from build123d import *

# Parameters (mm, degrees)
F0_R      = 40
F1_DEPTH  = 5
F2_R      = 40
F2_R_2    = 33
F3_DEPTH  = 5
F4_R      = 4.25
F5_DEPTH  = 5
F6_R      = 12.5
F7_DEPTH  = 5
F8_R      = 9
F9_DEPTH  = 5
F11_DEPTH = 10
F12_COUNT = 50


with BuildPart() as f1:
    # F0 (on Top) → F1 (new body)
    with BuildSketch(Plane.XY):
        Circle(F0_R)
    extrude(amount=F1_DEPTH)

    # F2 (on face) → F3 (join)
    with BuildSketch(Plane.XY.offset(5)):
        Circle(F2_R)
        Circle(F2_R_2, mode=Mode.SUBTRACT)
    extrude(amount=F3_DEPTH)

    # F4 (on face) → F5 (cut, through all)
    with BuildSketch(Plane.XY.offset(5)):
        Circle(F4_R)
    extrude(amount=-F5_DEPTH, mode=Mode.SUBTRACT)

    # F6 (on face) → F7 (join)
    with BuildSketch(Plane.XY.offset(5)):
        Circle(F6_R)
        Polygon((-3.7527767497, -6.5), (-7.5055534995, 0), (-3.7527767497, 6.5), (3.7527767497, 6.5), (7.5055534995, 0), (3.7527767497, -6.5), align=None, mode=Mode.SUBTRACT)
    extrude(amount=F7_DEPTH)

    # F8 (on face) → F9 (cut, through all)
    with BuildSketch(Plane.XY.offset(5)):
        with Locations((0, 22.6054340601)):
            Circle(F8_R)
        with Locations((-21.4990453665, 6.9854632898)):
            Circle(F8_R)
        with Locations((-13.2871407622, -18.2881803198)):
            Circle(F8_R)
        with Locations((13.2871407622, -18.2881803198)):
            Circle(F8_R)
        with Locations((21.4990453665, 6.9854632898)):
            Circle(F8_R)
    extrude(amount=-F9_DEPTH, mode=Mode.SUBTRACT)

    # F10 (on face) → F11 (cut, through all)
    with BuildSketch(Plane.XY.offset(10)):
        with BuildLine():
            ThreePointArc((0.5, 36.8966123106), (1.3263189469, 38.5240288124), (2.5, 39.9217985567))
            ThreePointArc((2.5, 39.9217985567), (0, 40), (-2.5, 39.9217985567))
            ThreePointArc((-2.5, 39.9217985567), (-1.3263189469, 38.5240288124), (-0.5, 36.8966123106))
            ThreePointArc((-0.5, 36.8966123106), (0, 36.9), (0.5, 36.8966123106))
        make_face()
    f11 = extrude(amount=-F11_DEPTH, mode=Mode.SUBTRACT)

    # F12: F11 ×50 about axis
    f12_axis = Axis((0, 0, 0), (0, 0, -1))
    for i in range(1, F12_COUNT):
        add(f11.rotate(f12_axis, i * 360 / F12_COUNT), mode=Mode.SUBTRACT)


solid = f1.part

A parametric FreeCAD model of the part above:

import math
import FreeCAD as App
import Part
import Sketcher
from FreeCAD import Vector
Q = App.Units.Quantity

doc = App.newDocument("Part")
body = doc.addObject("PartDesign::Body", "Body")

# Sketch on XY plane
sketch1 = body.newObject("Sketcher::SketchObject", "Sketch")
sketch1.AttachmentSupport = (doc.getObject("XY_Plane"), [""])
sketch1.MapMode = "FlatFace"
sketch1.addGeometry(Part.Circle(Vector(0, 0, 0), Vector(0, 0, 1), 40), False)
sketch1.addConstraint(Sketcher.Constraint("Coincident", 0, 3, -1, 1))
sketch1.addConstraint(Sketcher.Constraint("Diameter", 0, 80.0))
pad1 = body.newObject("PartDesign::Pad", "Pad")
pad1.Profile = sketch1
pad1.Length = 5

# Sketch on XY plane
sketch2 = body.newObject("Sketcher::SketchObject", "Sketch001")
sketch2.AttachmentSupport = (doc.getObject("XY_Plane"), [""])
sketch2.MapMode = "FlatFace"
sketch2.AttachmentOffset = App.Placement(Vector(0, 0, 5), App.Rotation())
sketch2.addGeometry(Part.Circle(Vector(0, 0, 0), Vector(0, 0, 1), 40), False)
sketch2.addGeometry(Part.Circle(Vector(0, 0, 0), Vector(0, 0, 1), 33), False)
sketch2.addConstraint(Sketcher.Constraint("Coincident", 0, 3, -1, 1))
sketch2.addConstraint(Sketcher.Constraint("Coincident", 1, 3, -1, 1))
sketch2.addConstraint(Sketcher.Constraint("Diameter", 0, 80.0))
sketch2.addConstraint(Sketcher.Constraint("Diameter", 1, 66.0))
pad2 = body.newObject("PartDesign::Pad", "Pad001")
pad2.Profile = sketch2
pad2.Length = 5

# Sketch on XY plane
sketch3 = body.newObject("Sketcher::SketchObject", "Sketch002")
sketch3.AttachmentSupport = (doc.getObject("XY_Plane"), [""])
sketch3.MapMode = "FlatFace"
sketch3.AttachmentOffset = App.Placement(Vector(0, 0, 5), App.Rotation())
sketch3.addGeometry(Part.Circle(Vector(0, 0, 0), Vector(0, 0, 1), 4.2), False)
sketch3.addConstraint(Sketcher.Constraint("Coincident", 0, 3, -1, 1))
sketch3.addConstraint(Sketcher.Constraint("Diameter", 0, 8.5))
pocket1 = body.newObject("PartDesign::Pocket", "Pocket")
pocket1.Profile = sketch3
pocket1.Type = "ThroughAll"

# Sketch on XY plane
sketch4 = body.newObject("Sketcher::SketchObject", "Sketch003")
sketch4.AttachmentSupport = (doc.getObject("XY_Plane"), [""])
sketch4.MapMode = "FlatFace"
sketch4.AttachmentOffset = App.Placement(Vector(0, 0, 5), App.Rotation())
sketch4.addGeometry(Part.Circle(Vector(0, 0, 0), Vector(0, 0, 1), 12), False)
sketch4.addGeometry(Part.LineSegment(Vector(4, -6, 0), Vector(-4, -6, 0)), False)
sketch4.addGeometry(Part.LineSegment(Vector(-4, -6, 0), Vector(-8, 0, 0)), False)
sketch4.addGeometry(Part.LineSegment(Vector(-8, 0, 0), Vector(-4, 6, 0)), False)
sketch4.addGeometry(Part.LineSegment(Vector(-4, 6, 0), Vector(4, 6, 0)), False)
sketch4.addGeometry(Part.LineSegment(Vector(4, 6, 0), Vector(8, 0, 0)), False)
sketch4.addGeometry(Part.LineSegment(Vector(8, 0, 0), Vector(4, -6, 0)), False)
sketch4.addConstraint(Sketcher.Constraint("Coincident", 1, 2, 2, 1))
sketch4.addConstraint(Sketcher.Constraint("Coincident", 2, 2, 3, 1))
sketch4.addConstraint(Sketcher.Constraint("Coincident", 3, 2, 4, 1))
sketch4.addConstraint(Sketcher.Constraint("Coincident", 4, 2, 5, 1))
sketch4.addConstraint(Sketcher.Constraint("Coincident", 5, 2, 6, 1))
sketch4.addConstraint(Sketcher.Constraint("Coincident", 6, 2, 1, 1))
sketch4.addConstraint(Sketcher.Constraint("Horizontal", 1))
sketch4.addConstraint(Sketcher.Constraint("Horizontal", 4))
sketch4.addConstraint(Sketcher.Constraint("Coincident", 0, 3, -1, 1))
sketch4.addConstraint(Sketcher.Constraint("Symmetric", 1, 2, 4, 2, -1, 1))
sketch4.addConstraint(Sketcher.Constraint("Symmetric", 2, 2, 5, 2, -1, 1))
sketch4.addConstraint(Sketcher.Constraint("PointOnObject", 2, 2, -1))
sketch4.addConstraint(Sketcher.Constraint("Parallel", 3, 6))
sketch4.addConstraint(Sketcher.Constraint("Vertical", 1, 2, 3, 2))
sketch4.addConstraint(Sketcher.Constraint("Diameter", 0, 25.0))
sketch4.addConstraint(Sketcher.Constraint("Angle", 2, Q("120 deg")))
sketch4.addConstraint(Sketcher.Constraint("DistanceY", 1, 2, 3, 2, 13.0))
sketch4.addConstraint(Sketcher.Constraint("DistanceX", 1, 2, 1, 1, 7.505554))
pad3 = body.newObject("PartDesign::Pad", "Pad002")
pad3.Profile = sketch4
pad3.Length = 5

# Sketch on XY plane
sketch5 = body.newObject("Sketcher::SketchObject", "Sketch004")
sketch5.AttachmentSupport = (doc.getObject("XY_Plane"), [""])
sketch5.MapMode = "FlatFace"
sketch5.AttachmentOffset = App.Placement(Vector(0, 0, 5), App.Rotation())
sketch5.addGeometry(Part.Circle(Vector(0, 23, 0), Vector(0, 0, 1), 9), False)
sketch5.addGeometry(Part.Circle(Vector(-21, 7, 0), Vector(0, 0, 1), 9), False)
sketch5.addGeometry(Part.Circle(Vector(-13, -18, 0), Vector(0, 0, 1), 9), False)
sketch5.addGeometry(Part.Circle(Vector(13, -18, 0), Vector(0, 0, 1), 9), False)
sketch5.addGeometry(Part.Circle(Vector(21, 7, 0), Vector(0, 0, 1), 9), False)
sketch5.addConstraint(Sketcher.Constraint("Equal", 0, 1))
sketch5.addConstraint(Sketcher.Constraint("Equal", 1, 2))
sketch5.addConstraint(Sketcher.Constraint("Equal", 2, 3))
sketch5.addConstraint(Sketcher.Constraint("Equal", 3, 4))
sketch5.addConstraint(Sketcher.Constraint("Symmetric", 2, 3, 3, 3, -2))
sketch5.addConstraint(Sketcher.Constraint("Symmetric", 1, 3, 4, 3, -2))
sketch5.addConstraint(Sketcher.Constraint("PointOnObject", 0, 3, -2))
sketch5.addConstraint(Sketcher.Constraint("Diameter", 0, 18.0))
sketch5.addConstraint(Sketcher.Constraint("DistanceX", 2, 3, -1, 1, 13.287141))
sketch5.addConstraint(Sketcher.Constraint("DistanceY", 2, 3, -1, 1, 18.28818))
sketch5.addConstraint(Sketcher.Constraint("DistanceY", 1, 3, 0, 3, 15.619971))
sketch5.addConstraint(Sketcher.Constraint("DistanceX", 1, 3, 4, 3, 42.998091))
sketch5.addConstraint(Sketcher.Constraint("DistanceY", -1, 1, 0, 3, 22.605434))
pocket2 = body.newObject("PartDesign::Pocket", "Pocket001")
pocket2.Profile = sketch5
pocket2.Type = "ThroughAll"

# Sketch on XY plane
sketch6 = body.newObject("Sketcher::SketchObject", "Sketch005")
sketch6.AttachmentSupport = (doc.getObject("XY_Plane"), [""])
sketch6.MapMode = "FlatFace"
sketch6.AttachmentOffset = App.Placement(Vector(0, 0, 10), App.Rotation())
sketch6.addGeometry(Part.ArcOfCircle(Part.Circle(Vector(8, 34.1, 0), Vector(0, 0, 1), 8), math.radians(133), math.radians(160)), False)
sketch6.addGeometry(Part.ArcOfCircle(Part.Circle(Vector(0, 0, 0), Vector(0, 0, 1), 40), math.radians(86.42), math.radians(93.58)), False)
sketch6.addGeometry(Part.ArcOfCircle(Part.Circle(Vector(-8, 34.1, 0), Vector(0, 0, 1), 8), math.radians(20), math.radians(47)), False)
sketch6.addGeometry(Part.ArcOfCircle(Part.Circle(Vector(0, 0, 0), Vector(0, 0, 1), 36.9), math.radians(89.22), math.radians(90.78)), False)
sketch6.addConstraint(Sketcher.Constraint("Coincident", 0, 1, 1, 1))
sketch6.addConstraint(Sketcher.Constraint("Coincident", 1, 2, 2, 2))
sketch6.addConstraint(Sketcher.Constraint("Coincident", 2, 1, 3, 2))
sketch6.addConstraint(Sketcher.Constraint("Coincident", 3, 1, 0, 2))
sketch6.addConstraint(Sketcher.Constraint("Coincident", 1, 3, -1, 1))
sketch6.addConstraint(Sketcher.Constraint("Coincident", 3, 3, -1, 1))
sketch6.addConstraint(Sketcher.Constraint("Equal", 0, 2))
sketch6.addConstraint(Sketcher.Constraint("Symmetric", 0, 3, 2, 3, -2))
sketch6.addConstraint(Sketcher.Constraint("Radius", 0, 8.0))
sketch6.addConstraint(Sketcher.Constraint("Radius", 1, 40.0))
sketch6.addConstraint(Sketcher.Constraint("Radius", 3, 36.9))
sketch6.addConstraint(Sketcher.Constraint("DistanceX", 1, 2, 0, 1, 5.0))
sketch6.addConstraint(Sketcher.Constraint("DistanceX", 1, 2, 2, 1, 2.0))
pocket3 = body.newObject("PartDesign::Pocket", "Pocket002")
pocket3.Profile = sketch6
pocket3.Type = "ThroughAll"
doc.recompute()

polarpattern = body.newObject("PartDesign::PolarPattern", "PolarPattern")
polarpattern.Originals = [pocket3]
polarpattern.Axis = (doc.getObject("Z_Axis"), [""])
polarpattern.Angle = 360
polarpattern.Occurrences = 50
body.Tip = polarpattern

doc.recompute()
